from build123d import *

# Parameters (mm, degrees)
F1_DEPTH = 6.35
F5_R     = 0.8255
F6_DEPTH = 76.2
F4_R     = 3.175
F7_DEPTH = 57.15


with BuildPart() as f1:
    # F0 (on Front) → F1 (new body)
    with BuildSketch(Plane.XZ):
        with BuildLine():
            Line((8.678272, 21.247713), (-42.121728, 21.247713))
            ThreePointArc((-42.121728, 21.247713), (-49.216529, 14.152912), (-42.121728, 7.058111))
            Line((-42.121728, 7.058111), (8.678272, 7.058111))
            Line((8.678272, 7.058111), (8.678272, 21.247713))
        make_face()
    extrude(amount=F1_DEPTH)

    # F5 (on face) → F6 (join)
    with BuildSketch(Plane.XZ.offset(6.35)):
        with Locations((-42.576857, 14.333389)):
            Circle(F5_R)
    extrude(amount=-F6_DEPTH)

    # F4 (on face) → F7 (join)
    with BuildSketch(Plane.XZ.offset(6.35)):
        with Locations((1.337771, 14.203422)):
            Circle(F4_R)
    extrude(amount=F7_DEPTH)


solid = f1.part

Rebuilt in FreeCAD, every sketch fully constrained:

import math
import FreeCAD as App
import Part
import Sketcher
Q = App.Units.Quantity

doc = App.newDocument("Part")
body = doc.addObject("PartDesign::Body", "Body")

# Sketch on XZ plane
sketch1 = body.newObject("Sketcher::SketchObject", "Sketch")
sketch1.AttachmentSupport = (doc.getObject("XZ_Plane"), [""])
sketch1.MapMode = "FlatFace"
sketch1.addGeometry([
    Part.LineSegment(App.Vector(9, 21, 0), App.Vector(-42, 21, 0)),
    Part.ArcOfCircle(Part.Circle(App.Vector(-42, 14, 0), App.Vector(0, 0, 1), 7), math.radians(90), math.radians(270)),
    Part.LineSegment(App.Vector(-42, 7, 0), App.Vector(9, 7, 0)),
    Part.LineSegment(App.Vector(9, 7, 0), App.Vector(9, 21, 0)),
], False)
sketch1.addConstraint([
    Sketcher.Constraint("Tangent", 0, 2, 1, 1),
    Sketcher.Constraint("Tangent", 1, 2, 2, 1),
    Sketcher.Constraint("Coincident", 2, 2, 3, 1),
    Sketcher.Constraint("Coincident", 3, 2, 0, 1),
    Sketcher.Constraint("Horizontal", 0),
    Sketcher.Constraint("Horizontal", 2),
    Sketcher.Constraint("Vertical", 3),
    Sketcher.Constraint("DistanceX", 0, 2, 0, 1, Q("2 in")),
    Sketcher.Constraint("Radius", 1, 7.094801),
    Sketcher.Constraint("DistanceY", -1, 1, 1, 2, 7.058111),
    Sketcher.Constraint("DistanceX", 1, 3, -1, 1, 42.121728),
])
pad1 = body.newObject("PartDesign::Pad", "Pad")
pad1.Profile = sketch1
pad1.Length = Q("0.25 in")

# Sketch on XZ plane
sketch2 = body.newObject("Sketcher::SketchObject", "Sketch001")
sketch2.AttachmentSupport = (doc.getObject("XZ_Plane"), [""])
sketch2.MapMode = "FlatFace"
sketch2.AttachmentOffset = App.Placement(App.Vector(0, 0, 0.25 * 25.4), App.Rotation())
sketch2.addGeometry(Part.Circle(App.Vector(-42.6, 14.3, 0), App.Vector(0, 0, 1), 0.8), False)
sketch2.addConstraint([
    Sketcher.Constraint("Diameter", 0, Q("0.065 in")),
    Sketcher.Constraint("DistanceY", -1, 1, 0, 3, 14.333389),
    Sketcher.Constraint("DistanceX", 0, 3, -1, 1, 42.576857),
])
pad2 = body.newObject("PartDesign::Pad", "Pad001")
pad2.Profile = sketch2
pad2.Length = Q("3 in")
pad2.Reversed = True

# Sketch on XZ plane
sketch3 = body.newObject("Sketcher::SketchObject", "Sketch002")
sketch3.AttachmentSupport = (doc.getObject("XZ_Plane"), [""])
sketch3.MapMode = "FlatFace"
sketch3.AttachmentOffset = App.Placement(App.Vector(0, 0, 0.25 * 25.4), App.Rotation())
sketch3.addGeometry(Part.Circle(App.Vector(1.3, 14.2, 0), App.Vector(0, 0, 1), 3.2), False)
sketch3.addConstraint([
    Sketcher.Constraint("Diameter", 0, Q("0.25 in")),
    Sketcher.Constraint("DistanceX", -1, 1, 0, 3, 1.337771),
    Sketcher.Constraint("DistanceY", -1, 1, 0, 3, 14.203422),
])
pad3 = body.newObject("PartDesign::Pad", "Pad002")
pad3.Profile = sketch3
pad3.Length = Q("2.25 in")

doc.recompute()
